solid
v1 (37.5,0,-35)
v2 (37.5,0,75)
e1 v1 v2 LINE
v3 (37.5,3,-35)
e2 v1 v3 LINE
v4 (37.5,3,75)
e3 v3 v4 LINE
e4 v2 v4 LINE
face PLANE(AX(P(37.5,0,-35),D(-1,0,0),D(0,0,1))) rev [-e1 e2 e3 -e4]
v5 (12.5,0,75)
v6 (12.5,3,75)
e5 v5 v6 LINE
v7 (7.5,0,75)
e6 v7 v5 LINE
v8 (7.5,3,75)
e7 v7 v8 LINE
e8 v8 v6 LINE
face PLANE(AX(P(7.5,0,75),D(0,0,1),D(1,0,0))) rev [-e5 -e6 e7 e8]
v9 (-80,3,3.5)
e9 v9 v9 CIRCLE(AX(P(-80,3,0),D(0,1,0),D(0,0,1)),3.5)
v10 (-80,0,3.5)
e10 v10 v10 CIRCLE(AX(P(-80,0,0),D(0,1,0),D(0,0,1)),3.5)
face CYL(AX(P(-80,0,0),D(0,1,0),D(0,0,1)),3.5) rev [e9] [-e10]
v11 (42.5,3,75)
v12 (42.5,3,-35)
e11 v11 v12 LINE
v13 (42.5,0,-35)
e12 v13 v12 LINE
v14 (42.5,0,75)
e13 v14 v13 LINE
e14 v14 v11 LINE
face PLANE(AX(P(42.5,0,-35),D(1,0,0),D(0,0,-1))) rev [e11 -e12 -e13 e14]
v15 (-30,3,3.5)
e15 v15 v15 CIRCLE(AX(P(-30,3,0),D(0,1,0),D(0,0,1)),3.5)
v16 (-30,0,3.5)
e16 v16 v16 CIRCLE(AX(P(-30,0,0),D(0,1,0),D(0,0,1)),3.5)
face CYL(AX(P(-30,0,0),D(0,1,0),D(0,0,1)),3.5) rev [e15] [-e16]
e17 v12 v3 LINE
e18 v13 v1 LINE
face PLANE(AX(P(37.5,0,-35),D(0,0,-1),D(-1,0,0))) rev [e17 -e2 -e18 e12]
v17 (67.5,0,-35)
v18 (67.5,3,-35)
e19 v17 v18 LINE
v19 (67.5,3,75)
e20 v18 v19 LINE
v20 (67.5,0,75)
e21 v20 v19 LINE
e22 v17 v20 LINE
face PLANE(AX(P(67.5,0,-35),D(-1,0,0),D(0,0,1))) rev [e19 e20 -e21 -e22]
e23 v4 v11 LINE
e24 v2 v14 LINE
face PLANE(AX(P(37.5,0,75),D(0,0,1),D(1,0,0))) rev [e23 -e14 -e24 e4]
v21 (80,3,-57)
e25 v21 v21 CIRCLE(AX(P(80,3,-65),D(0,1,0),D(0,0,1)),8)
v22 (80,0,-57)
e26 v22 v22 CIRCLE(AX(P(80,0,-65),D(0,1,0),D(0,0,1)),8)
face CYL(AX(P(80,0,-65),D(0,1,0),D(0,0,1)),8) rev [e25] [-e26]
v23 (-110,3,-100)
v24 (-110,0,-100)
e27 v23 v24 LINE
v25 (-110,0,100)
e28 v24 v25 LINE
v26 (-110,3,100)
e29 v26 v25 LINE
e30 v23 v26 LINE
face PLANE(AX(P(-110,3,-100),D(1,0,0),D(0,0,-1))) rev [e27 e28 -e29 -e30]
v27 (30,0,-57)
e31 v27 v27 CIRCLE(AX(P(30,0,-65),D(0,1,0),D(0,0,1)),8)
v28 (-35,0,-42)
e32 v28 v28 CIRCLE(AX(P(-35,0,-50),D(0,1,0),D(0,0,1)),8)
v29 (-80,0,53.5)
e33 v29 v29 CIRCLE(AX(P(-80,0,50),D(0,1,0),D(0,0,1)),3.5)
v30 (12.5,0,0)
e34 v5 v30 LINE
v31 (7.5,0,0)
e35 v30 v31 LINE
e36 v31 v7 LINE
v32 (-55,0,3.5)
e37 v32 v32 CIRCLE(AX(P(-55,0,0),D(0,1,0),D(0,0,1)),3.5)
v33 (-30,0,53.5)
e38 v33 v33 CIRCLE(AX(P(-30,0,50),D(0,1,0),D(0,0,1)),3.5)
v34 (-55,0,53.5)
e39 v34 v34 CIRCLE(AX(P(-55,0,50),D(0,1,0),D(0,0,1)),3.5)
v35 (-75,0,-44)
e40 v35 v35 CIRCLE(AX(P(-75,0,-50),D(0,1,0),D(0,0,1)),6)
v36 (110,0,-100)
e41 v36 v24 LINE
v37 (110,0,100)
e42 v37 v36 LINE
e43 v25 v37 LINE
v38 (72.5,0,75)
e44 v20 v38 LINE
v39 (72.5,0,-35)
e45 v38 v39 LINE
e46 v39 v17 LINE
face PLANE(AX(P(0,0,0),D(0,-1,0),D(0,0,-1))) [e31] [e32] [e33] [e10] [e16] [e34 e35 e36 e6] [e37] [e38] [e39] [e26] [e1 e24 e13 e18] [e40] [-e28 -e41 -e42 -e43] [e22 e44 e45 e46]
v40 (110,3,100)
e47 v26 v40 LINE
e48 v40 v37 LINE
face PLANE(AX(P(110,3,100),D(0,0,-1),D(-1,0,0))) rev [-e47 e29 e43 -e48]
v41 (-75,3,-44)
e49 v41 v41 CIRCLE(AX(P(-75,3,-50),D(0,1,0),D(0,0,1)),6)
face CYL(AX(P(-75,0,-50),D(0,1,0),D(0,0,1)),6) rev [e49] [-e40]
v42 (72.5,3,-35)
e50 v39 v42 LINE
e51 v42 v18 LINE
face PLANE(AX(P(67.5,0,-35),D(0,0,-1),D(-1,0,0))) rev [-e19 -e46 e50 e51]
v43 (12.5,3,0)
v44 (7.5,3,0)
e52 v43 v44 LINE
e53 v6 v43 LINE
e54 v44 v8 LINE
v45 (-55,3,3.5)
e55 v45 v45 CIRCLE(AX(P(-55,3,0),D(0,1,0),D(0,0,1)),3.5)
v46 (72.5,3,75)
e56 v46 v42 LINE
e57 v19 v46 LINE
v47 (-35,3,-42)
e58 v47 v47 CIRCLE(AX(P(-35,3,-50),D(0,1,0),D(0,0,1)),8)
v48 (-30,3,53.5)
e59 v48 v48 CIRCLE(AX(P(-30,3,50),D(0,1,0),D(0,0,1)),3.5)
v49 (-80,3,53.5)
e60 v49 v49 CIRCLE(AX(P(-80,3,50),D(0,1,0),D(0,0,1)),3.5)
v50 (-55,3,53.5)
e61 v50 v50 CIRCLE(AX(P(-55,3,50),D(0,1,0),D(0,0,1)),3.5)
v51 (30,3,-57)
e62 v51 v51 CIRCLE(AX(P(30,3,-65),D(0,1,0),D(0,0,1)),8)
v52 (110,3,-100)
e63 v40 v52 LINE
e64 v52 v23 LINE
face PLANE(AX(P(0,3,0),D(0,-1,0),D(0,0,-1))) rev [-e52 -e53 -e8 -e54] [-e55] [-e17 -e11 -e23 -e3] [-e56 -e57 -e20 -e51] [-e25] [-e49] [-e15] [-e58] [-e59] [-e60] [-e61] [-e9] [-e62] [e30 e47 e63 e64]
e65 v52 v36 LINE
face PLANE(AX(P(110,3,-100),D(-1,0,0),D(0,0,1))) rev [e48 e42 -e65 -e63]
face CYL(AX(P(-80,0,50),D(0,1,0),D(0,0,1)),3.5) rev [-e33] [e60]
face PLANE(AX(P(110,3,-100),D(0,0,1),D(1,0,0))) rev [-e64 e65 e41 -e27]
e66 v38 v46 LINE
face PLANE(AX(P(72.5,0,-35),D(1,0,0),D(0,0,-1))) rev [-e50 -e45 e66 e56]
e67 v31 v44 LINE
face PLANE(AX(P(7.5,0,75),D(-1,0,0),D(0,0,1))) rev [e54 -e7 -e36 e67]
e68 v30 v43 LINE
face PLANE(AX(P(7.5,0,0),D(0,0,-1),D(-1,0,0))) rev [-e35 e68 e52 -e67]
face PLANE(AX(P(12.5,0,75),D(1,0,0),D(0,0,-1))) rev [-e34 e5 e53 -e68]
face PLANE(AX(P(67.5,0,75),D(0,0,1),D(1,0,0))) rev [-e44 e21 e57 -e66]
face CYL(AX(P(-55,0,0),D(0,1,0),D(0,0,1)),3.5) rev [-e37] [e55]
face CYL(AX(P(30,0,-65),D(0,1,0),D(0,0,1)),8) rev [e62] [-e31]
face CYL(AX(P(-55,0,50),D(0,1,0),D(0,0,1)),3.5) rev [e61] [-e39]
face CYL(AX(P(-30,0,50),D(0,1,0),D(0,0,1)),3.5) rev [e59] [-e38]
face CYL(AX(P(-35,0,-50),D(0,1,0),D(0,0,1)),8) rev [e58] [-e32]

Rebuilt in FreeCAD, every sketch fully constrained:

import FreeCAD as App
import Part
import Sketcher

V = App.Vector


def add_polygon(sketch, points):
    """Adds a closed chain of lines whose ends are joined by coincident constraints."""
    first, n = sketch.GeometryCount, len(points)
    for a, b in zip(points, points[1:] + points[:1]):
        sketch.addGeometry(Part.LineSegment(App.Vector(*a, 0), App.Vector(*b, 0)), False)
    for i in range(n):
        sketch.addConstraint(Sketcher.Constraint("Coincident", first + i, 2, first + (i + 1) % n, 1))

doc = App.newDocument("Part")
body = doc.addObject("PartDesign::Body", "Body")

# Sketch on XZ plane
sketch1 = doc.addObject("Sketcher::SketchObject", "Sketch")
body.addObject(sketch1)
sketch1.AttachmentSupport = (doc.XZ_Plane, [""])
sketch1.MapMode = "FlatFace"
add_polygon(sketch1, [(-110, -100), (-110, 100), (110, 100), (110, -100)])  # lines 0-3
sketch1.addConstraint([
    Sketcher.Constraint("Vertical", 0),
    Sketcher.Constraint("Horizontal", 1),
    Sketcher.Constraint("Vertical", 2),
    Sketcher.Constraint("Horizontal", 3),
    Sketcher.Constraint("Symmetric", 0, 2, 2, 2, -1, 1),
    Sketcher.Constraint("DistanceX", 1, 1, 1, 2, 220.0),
    Sketcher.Constraint("DistanceY", 0, 1, 0, 2, 200.0),
])
pad1 = doc.addObject("PartDesign::Pad", "Pad")
body.addObject(pad1)
pad1.Profile = sketch1
pad1.Length = 3
pad1.Reversed = True

# Sketch on XZ plane
sketch2 = doc.addObject("Sketcher::SketchObject", "Sketch001")
body.addObject(sketch2)
sketch2.AttachmentSupport = (doc.XZ_Plane, [""])
sketch2.MapMode = "FlatFace"
sketch2.AttachmentOffset = App.Placement(V(0, 0, -3), App.Rotation())
sketch2.addGeometry(Part.Circle(V(-80, 0, 0), V(0, 0, 1), 3.5), False)  # 0
sketch2.addGeometry(Part.Circle(V(-55, 0, 0), V(0, 0, 1), 3.5), False)  # 1
sketch2.addGeometry(Part.Circle(V(-30, 0, 0), V(0, 0, 1), 3.5), False)  # 2
sketch2.addGeometry(Part.Circle(V(-80, 50, 0), V(0, 0, 1), 3.5), False)  # 3
sketch2.addGeometry(Part.Circle(V(-55, 50, 0), V(0, 0, 1), 3.5), False)  # 4
sketch2.addGeometry(Part.Circle(V(-30, 50, 0), V(0, 0, 1), 3.5), False)  # 5
sketch2.addGeometry(Part.Circle(V(-75, -50, 0), V(0, 0, 1), 6), False)  # 6
sketch2.addGeometry(Part.Circle(V(-35, -50, 0), V(0, 0, 1), 8), False)  # 7
sketch2.addGeometry(Part.Circle(V(30, -65, 0), V(0, 0, 1), 8), False)  # 8
sketch2.addGeometry(Part.Circle(V(80, -65, 0), V(0, 0, 1), 8), False)  # 9
add_polygon(sketch2, [(67.5, -35), (67.5, 75), (72.5, 75), (72.5, -35)])  # lines 10-13
add_polygon(sketch2, [(37.5, -35), (37.5, 75), (42.5, 75), (42.5, -35)])  # lines 14-17
add_polygon(sketch2, [(7.5, 0), (7.5, 75), (12.5, 75), (12.5, 0)])  # lines 18-21
sketch2.addConstraint([
    Sketcher.Constraint("Vertical", 10),
    Sketcher.Constraint("Horizontal", 11),
    Sketcher.Constraint("Vertical", 12),
    Sketcher.Constraint("Horizontal", 13),
    Sketcher.Constraint("Vertical", 14),
    Sketcher.Constraint("Horizontal", 15),
    Sketcher.Constraint("Vertical", 16),
    Sketcher.Constraint("Horizontal", 17),
    Sketcher.Constraint("Vertical", 18),
    Sketcher.Constraint("Horizontal", 19),
    Sketcher.Constraint("Vertical", 20),
    Sketcher.Constraint("Horizontal", 21),
    Sketcher.Constraint("Equal", 0, 1),
    Sketcher.Constraint("Equal", 1, 2),
    Sketcher.Constraint("Equal", 2, 3),
    Sketcher.Constraint("Equal", 3, 4),
    Sketcher.Constraint("Equal", 4, 5),
    Sketcher.Constraint("Equal", 7, 8),
    Sketcher.Constraint("Equal", 8, 9),
    Sketcher.Constraint("PointOnObject", 0, 3, -1),
    Sketcher.Constraint("PointOnObject", 1, 3, -1),
    Sketcher.Constraint("PointOnObject", 2, 3, -1),
    Sketcher.Constraint("PointOnObject", 20, 2, -1),
    Sketcher.Constraint("Horizontal", 3, 3, 4, 3),
    Sketcher.Constraint("Horizontal", 4, 3, 5, 3),
    Sketcher.Constraint("Horizontal", 6, 3, 7, 3),
    Sketcher.Constraint("Horizontal", 8, 3, 9, 3),
    Sketcher.Constraint("Horizontal", 11, 2, 14, 2),
    Sketcher.Constraint("Horizontal", 13, 2, 16, 2),
    Sketcher.Constraint("Horizontal", 15, 2, 18, 2),
    Sketcher.Constraint("Vertical", 0, 3, 3, 3),
    Sketcher.Constraint("Vertical", 1, 3, 4, 3),
    Sketcher.Constraint("Vertical", 2, 3, 5, 3),
    Sketcher.Constraint("Equal", 13, 15),
    Sketcher.Constraint("Equal", 17, 19),
    Sketcher.Constraint("Diameter", 0, 7.0),
    Sketcher.Constraint("Diameter", 6, 12.0),
    Sketcher.Constraint("Diameter", 7, 16.0),
    Sketcher.Constraint("DistanceX", 11, 1, 11, 2, 5.0),
    Sketcher.Constraint("DistanceY", 10, 1, 10, 2, 110.0),
    Sketcher.Constraint("DistanceY", 18, 1, 18, 2, 75.0),
    Sketcher.Constraint("DistanceX", 0, 3, -1, 1, 80.0),
    Sketcher.Constraint("DistanceX", 1, 3, -1, 1, 55.0),
    Sketcher.Constraint("DistanceX", 2, 3, -1, 1, 30.0),
    Sketcher.Constraint("DistanceY", -1, 1, 3, 3, 50.0),
    Sketcher.Constraint("DistanceX", 6, 3, -1, 1, 75.0),
    Sketcher.Constraint("DistanceY", 6, 3, -1, 1, 50.0),
    Sketcher.Constraint("DistanceX", 7, 3, -1, 1, 35.0),
    Sketcher.Constraint("DistanceX", -1, 1, 8, 3, 30.0),
    Sketcher.Constraint("DistanceY", 8, 3, -1, 1, 65.0),
    Sketcher.Constraint("DistanceX", -1, 1, 9, 3, 80.0),
    Sketcher.Constraint("DistanceX", 14, 2, 10, 2, 30.0),
    Sketcher.Constraint("DistanceX", 18, 2, 14, 2, 30.0),
    Sketcher.Constraint("DistanceX", -1, 1, 10, 2, 67.5),
])
pocket1 = doc.addObject("PartDesign::Pocket", "Pocket")
body.addObject(pocket1)
pocket1.Profile = sketch2
pocket1.Type = "ThroughAll"
pocket1.Reversed = True

doc.recompute()
